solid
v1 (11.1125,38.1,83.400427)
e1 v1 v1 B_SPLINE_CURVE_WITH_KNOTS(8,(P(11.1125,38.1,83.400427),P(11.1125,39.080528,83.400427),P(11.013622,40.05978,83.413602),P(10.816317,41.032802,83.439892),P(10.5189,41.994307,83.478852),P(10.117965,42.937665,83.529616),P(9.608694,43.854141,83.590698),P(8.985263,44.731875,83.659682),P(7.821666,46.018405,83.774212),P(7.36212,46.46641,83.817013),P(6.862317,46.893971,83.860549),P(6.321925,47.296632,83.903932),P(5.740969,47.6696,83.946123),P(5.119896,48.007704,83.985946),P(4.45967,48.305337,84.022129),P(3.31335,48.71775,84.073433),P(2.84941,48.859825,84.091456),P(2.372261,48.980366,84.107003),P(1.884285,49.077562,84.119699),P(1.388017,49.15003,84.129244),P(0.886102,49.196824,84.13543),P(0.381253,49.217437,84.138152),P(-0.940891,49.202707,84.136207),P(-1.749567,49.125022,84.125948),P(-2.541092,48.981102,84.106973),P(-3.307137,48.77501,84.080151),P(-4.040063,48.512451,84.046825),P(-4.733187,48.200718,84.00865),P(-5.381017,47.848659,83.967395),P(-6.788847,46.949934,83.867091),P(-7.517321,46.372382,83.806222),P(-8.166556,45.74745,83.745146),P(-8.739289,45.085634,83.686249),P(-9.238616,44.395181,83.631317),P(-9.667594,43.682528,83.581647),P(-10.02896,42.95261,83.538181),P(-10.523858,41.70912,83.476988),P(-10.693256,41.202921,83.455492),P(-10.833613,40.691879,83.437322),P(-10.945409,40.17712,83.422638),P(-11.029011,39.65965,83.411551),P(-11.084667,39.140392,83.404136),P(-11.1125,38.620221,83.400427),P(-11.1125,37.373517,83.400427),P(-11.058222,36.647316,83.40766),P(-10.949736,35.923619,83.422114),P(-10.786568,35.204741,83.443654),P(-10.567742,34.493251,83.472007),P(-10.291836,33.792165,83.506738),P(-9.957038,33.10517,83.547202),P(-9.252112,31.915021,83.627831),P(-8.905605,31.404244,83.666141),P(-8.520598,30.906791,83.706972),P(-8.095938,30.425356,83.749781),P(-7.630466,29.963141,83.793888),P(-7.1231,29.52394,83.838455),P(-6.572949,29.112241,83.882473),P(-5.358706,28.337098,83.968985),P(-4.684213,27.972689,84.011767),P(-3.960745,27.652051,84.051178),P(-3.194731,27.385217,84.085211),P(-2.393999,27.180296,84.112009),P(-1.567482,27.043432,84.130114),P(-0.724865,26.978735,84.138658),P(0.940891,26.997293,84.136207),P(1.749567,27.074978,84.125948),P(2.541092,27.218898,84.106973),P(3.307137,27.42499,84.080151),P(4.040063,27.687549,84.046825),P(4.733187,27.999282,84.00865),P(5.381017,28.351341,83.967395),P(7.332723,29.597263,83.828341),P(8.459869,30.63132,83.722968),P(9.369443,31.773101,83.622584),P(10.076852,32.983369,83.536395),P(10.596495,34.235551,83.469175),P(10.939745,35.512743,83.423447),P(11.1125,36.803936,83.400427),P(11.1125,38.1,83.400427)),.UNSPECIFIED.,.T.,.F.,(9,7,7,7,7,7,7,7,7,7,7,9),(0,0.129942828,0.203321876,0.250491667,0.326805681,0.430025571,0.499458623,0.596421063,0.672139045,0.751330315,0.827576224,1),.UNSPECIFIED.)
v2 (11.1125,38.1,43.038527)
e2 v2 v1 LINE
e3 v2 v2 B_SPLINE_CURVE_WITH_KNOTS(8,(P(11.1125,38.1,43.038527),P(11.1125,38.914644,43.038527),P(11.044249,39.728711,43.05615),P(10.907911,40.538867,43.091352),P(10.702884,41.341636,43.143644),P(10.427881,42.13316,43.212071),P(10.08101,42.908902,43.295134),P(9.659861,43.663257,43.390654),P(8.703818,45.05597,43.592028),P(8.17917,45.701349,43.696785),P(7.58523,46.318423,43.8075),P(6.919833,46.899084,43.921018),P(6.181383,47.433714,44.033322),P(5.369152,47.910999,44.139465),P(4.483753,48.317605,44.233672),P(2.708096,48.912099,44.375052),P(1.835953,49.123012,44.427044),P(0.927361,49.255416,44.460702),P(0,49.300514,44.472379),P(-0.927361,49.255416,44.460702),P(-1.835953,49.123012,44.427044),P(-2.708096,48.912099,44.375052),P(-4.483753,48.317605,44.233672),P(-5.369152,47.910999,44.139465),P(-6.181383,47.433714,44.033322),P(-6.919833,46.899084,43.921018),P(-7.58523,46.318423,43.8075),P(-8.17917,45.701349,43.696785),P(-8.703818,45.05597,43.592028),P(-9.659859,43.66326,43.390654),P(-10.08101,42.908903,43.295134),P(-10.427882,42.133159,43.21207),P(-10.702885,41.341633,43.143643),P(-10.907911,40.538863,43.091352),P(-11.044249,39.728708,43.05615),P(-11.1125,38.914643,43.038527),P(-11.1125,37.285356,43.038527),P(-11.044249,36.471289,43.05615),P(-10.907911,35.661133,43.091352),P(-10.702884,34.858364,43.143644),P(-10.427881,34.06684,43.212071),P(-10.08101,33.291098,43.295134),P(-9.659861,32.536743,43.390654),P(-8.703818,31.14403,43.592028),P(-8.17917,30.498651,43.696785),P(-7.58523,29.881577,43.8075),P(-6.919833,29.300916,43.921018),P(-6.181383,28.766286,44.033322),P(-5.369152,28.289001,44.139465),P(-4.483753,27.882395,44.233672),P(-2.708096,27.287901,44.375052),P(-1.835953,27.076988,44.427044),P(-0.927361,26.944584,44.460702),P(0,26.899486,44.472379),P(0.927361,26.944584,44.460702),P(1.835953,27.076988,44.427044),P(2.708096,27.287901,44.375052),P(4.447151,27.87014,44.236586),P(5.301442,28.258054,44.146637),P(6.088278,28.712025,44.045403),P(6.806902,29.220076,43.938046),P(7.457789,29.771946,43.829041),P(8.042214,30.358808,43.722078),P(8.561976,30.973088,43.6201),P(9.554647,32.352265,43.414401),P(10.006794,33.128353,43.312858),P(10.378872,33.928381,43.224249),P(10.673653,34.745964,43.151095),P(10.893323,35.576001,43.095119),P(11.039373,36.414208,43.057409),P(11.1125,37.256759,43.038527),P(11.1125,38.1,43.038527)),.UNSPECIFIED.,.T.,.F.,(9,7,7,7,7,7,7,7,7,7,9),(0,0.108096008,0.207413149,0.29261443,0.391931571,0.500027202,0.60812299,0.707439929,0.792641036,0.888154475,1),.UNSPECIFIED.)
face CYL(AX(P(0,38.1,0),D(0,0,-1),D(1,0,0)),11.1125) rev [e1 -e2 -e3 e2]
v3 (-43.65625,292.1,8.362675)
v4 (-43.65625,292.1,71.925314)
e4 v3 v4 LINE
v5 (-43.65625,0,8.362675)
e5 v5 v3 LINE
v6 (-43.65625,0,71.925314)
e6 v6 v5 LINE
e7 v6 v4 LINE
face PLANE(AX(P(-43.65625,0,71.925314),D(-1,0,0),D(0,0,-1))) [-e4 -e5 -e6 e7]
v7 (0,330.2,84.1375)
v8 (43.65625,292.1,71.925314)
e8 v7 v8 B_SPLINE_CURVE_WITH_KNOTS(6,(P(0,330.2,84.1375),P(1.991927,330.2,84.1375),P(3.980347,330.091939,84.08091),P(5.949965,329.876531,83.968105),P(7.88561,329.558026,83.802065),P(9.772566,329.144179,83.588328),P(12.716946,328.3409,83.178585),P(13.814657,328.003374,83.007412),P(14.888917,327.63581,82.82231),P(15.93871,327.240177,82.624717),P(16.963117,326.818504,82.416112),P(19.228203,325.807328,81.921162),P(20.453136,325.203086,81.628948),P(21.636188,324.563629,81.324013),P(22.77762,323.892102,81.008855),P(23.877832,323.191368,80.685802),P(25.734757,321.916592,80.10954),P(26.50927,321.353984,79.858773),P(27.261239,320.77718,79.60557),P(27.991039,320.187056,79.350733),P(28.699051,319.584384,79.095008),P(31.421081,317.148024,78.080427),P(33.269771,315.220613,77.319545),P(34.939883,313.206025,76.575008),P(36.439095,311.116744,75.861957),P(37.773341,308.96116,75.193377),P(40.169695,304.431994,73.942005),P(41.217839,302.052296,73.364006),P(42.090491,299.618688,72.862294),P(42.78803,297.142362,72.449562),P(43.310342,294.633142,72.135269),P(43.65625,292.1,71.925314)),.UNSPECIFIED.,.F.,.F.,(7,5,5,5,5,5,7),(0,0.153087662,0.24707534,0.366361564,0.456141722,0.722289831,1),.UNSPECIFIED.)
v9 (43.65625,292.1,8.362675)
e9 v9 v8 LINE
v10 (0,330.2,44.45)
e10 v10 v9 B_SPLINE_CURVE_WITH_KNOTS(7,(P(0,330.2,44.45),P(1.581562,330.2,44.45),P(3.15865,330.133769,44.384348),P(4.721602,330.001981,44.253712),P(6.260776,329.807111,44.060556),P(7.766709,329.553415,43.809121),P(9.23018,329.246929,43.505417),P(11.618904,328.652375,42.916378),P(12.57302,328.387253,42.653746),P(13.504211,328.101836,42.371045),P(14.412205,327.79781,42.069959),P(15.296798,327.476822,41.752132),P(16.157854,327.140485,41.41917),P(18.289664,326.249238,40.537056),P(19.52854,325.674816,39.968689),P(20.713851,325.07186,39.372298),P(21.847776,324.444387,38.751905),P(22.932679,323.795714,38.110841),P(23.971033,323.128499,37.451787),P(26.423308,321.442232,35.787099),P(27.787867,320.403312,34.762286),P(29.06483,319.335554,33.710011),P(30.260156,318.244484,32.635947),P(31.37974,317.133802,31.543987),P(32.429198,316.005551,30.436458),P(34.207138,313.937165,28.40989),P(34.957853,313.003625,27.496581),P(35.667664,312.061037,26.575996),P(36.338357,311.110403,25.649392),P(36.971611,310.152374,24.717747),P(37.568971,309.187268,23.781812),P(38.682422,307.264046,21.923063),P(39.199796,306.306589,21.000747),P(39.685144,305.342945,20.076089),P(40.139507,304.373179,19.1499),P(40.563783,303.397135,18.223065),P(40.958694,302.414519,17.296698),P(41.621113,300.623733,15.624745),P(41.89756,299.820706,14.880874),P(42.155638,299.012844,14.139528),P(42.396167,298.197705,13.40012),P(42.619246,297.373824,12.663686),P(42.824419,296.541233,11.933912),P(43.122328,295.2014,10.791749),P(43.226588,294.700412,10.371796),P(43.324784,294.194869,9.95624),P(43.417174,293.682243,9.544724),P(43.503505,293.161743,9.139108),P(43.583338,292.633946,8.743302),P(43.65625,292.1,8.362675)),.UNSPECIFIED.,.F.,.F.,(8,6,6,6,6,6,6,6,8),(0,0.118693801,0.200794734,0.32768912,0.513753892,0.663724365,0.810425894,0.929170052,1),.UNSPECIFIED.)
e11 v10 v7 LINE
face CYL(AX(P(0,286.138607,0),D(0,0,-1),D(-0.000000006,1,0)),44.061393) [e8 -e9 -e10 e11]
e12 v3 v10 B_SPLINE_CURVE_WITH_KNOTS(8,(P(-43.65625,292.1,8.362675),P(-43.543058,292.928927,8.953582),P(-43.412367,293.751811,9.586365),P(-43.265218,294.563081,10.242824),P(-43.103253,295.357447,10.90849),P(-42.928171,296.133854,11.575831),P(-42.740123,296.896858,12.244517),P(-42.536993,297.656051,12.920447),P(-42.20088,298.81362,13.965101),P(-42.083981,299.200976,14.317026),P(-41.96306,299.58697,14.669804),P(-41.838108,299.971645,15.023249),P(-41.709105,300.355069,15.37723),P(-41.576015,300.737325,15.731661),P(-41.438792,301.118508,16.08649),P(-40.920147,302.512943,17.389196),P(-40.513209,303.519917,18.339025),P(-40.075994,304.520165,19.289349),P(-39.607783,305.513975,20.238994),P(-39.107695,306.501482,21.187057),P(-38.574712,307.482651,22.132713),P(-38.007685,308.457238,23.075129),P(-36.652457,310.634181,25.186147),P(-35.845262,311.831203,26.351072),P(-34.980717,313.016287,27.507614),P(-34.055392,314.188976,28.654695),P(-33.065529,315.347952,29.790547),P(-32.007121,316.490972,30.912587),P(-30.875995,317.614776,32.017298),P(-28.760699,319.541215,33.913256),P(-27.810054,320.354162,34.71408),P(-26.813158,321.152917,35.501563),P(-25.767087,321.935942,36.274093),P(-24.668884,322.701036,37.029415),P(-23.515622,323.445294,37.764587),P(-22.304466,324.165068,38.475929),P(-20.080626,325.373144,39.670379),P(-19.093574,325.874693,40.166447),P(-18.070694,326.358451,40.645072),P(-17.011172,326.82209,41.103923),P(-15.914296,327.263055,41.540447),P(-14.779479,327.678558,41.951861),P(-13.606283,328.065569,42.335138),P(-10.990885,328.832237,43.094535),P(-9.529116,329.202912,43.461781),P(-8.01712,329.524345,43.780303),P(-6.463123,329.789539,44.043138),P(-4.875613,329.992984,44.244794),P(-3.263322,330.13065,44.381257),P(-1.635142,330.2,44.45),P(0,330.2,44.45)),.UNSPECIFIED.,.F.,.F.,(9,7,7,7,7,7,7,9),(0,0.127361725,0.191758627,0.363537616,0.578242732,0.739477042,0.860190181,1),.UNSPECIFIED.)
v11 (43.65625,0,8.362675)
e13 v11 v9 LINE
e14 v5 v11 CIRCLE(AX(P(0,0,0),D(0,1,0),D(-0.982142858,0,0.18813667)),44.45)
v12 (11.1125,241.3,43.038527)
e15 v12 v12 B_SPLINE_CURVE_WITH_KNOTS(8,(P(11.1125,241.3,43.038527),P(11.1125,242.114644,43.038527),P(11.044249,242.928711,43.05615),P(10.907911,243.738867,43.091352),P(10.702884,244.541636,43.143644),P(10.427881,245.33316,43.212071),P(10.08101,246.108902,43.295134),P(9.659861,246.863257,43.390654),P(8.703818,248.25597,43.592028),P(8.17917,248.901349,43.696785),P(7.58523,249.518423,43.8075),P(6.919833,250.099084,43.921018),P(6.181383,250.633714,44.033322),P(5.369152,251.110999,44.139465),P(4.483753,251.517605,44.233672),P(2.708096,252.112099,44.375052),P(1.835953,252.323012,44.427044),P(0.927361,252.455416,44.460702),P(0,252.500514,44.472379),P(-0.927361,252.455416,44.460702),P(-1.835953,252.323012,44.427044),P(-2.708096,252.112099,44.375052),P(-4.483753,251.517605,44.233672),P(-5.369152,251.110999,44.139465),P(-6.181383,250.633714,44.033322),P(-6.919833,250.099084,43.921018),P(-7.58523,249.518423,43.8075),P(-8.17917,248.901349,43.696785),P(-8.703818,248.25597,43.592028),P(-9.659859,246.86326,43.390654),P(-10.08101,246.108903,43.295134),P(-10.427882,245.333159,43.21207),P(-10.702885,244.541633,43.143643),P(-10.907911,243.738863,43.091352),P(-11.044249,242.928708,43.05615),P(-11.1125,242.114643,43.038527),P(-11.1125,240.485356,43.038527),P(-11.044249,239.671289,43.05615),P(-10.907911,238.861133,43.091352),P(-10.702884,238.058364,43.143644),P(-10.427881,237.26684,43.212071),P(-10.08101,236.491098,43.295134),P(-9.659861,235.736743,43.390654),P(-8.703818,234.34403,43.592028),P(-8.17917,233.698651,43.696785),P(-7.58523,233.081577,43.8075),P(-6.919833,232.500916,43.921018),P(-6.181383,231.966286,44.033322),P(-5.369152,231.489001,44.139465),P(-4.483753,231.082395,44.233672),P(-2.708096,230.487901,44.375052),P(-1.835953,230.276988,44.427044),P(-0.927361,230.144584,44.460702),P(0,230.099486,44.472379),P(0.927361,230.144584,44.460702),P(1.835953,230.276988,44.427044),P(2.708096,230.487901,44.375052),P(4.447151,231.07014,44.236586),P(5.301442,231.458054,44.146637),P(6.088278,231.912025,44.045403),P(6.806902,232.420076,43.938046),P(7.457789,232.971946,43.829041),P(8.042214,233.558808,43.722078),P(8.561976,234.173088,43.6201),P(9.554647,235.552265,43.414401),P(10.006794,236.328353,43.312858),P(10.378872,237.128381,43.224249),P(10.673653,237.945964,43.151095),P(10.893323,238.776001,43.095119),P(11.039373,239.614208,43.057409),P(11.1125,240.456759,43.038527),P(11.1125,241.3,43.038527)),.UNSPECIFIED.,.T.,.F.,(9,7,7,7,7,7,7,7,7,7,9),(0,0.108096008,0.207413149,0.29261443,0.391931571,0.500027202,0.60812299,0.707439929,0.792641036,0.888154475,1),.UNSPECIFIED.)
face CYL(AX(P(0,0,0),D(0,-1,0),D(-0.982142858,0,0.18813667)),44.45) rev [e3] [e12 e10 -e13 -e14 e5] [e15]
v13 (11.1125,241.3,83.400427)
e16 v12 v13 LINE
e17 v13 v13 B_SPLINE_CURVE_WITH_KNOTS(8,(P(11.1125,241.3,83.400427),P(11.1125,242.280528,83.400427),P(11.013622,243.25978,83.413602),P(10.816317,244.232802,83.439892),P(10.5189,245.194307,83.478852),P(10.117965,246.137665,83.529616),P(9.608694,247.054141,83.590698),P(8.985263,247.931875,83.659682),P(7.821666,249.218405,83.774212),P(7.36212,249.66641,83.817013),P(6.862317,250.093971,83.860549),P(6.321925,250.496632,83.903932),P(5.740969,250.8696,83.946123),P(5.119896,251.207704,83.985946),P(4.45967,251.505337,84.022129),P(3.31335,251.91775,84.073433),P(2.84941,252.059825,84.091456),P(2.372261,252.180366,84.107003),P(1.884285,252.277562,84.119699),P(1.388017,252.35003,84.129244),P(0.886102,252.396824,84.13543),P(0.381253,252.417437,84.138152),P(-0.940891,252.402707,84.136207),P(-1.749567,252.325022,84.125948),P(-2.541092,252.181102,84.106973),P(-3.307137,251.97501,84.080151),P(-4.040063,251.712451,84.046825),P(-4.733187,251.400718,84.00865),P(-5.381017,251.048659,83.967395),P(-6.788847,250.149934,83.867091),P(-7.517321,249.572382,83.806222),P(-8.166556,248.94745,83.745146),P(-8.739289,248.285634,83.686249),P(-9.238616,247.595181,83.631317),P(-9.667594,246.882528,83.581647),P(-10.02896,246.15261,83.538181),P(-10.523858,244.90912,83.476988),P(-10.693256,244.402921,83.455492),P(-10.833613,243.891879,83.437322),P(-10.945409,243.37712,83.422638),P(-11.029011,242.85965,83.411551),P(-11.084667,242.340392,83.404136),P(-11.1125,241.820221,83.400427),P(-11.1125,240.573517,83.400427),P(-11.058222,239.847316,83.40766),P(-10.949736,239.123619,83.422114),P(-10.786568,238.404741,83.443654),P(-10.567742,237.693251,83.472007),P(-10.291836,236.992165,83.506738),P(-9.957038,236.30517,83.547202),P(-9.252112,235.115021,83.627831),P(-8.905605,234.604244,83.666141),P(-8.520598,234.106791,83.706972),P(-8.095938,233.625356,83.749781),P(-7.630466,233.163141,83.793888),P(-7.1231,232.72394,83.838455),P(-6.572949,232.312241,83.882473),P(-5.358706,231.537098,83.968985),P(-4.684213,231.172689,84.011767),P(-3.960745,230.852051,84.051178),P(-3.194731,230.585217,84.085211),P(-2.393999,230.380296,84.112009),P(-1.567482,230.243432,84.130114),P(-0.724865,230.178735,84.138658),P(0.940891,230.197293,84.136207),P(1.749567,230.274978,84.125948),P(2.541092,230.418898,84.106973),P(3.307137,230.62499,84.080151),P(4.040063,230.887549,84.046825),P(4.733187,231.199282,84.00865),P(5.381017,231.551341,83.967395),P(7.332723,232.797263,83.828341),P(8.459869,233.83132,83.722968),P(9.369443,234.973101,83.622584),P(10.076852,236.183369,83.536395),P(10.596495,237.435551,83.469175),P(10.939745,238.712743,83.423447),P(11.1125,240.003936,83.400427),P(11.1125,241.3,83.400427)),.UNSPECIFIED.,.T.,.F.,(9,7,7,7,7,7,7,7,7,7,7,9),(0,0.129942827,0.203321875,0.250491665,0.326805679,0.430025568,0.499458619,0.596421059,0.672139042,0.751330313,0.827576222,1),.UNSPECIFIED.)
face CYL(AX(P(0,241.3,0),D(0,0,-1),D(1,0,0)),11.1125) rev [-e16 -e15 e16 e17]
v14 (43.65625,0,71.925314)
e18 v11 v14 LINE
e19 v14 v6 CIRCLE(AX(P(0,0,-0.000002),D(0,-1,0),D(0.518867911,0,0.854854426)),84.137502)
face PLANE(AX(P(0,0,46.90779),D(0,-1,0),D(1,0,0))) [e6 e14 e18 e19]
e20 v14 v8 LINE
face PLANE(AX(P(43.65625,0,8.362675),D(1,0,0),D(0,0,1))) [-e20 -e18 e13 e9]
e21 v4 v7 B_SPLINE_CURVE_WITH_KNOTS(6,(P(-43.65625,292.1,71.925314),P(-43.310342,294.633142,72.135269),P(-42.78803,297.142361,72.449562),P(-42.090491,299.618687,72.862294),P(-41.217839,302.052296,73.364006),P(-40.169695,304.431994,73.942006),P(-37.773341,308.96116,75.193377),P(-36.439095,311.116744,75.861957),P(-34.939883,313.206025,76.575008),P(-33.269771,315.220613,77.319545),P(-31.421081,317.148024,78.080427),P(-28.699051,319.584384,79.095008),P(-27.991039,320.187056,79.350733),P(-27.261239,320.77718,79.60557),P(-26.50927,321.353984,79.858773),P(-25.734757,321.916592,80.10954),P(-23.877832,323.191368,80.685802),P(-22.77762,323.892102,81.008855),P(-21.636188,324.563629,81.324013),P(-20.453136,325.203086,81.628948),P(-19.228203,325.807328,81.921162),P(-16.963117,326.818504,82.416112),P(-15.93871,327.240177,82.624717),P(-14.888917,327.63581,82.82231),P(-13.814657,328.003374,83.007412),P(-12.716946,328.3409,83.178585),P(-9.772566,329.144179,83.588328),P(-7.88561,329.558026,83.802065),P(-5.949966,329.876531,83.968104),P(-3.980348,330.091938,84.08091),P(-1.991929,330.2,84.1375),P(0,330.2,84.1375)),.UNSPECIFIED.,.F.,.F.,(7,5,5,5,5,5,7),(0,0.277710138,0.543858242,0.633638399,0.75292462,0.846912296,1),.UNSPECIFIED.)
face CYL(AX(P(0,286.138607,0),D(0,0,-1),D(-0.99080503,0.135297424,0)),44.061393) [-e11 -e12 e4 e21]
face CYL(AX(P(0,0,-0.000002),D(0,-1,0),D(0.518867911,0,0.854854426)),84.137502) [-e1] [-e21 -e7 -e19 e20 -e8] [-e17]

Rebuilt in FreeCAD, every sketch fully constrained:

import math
import FreeCAD as App
import Part
import Sketcher
Q = App.Units.Quantity

doc = App.newDocument("Part")
body = doc.addObject("PartDesign::Body", "Body")

# Sketch on XZ plane
sketch1 = body.newObject("Sketcher::SketchObject", "Sketch")
sketch1.AttachmentSupport = (doc.getObject("XZ_Plane"), [""])
sketch1.MapMode = "FlatFace"
sketch1.addGeometry([
    Part.ArcOfCircle(Part.Circle(App.Vector(0, 0, 0), App.Vector(0, 0, 1), 44), math.radians(11), math.radians(169)),
    Part.LineSegment(App.Vector(44, 8, 0), App.Vector(44, 72, 0)),
    Part.ArcOfCircle(Part.Circle(App.Vector(0, 0, 0), App.Vector(0, 0, 1), 84), math.radians(59), math.radians(121)),
    Part.LineSegment(App.Vector(-44, 72, 0), App.Vector(-44, 8, 0)),
], False)
sketch1.addConstraint([
    Sketcher.Constraint("Coincident", 0, 1, 1, 1),
    Sketcher.Constraint("Coincident", 1, 2, 2, 1),
    Sketcher.Constraint("Coincident", 2, 2, 3, 1),
    Sketcher.Constraint("Coincident", 3, 2, 0, 2),
    Sketcher.Constraint("Vertical", 1),
    Sketcher.Constraint("Vertical", 3),
    Sketcher.Constraint("Coincident", 0, 3, -1, 1),
    Sketcher.Constraint("Coincident", 2, 3, -1, 1),
    Sketcher.Constraint("Horizontal", 1, 2, 2, 2),
    Sketcher.Constraint("Radius", 0, Q("1.75 in")),
    Sketcher.Constraint("Radius", 2, Q("3.3125001 in")),
    Sketcher.Constraint("DistanceX", -1, 1, 0, 1, Q("1.71875 in")),
])
pad1 = body.newObject("PartDesign::Pad", "Pad")
pad1.Profile = sketch1
pad1.Length = Q("13 in")
pad1.Reversed = True

# Sketch on XY plane
sketch2 = body.newObject("Sketcher::SketchObject", "Sketch001")
sketch2.AttachmentSupport = (doc.getObject("XY_Plane"), [""])
sketch2.MapMode = "FlatFace"
sketch2.addGeometry([
    Part.LineSegment(App.Vector(-44, 330, 0), App.Vector(-44, 292, 0)),  # 0
    Part.ArcOfCircle(Part.Circle(App.Vector(0, 286, 0), App.Vector(0, 0, 1), 44), math.radians(90), math.radians(172)),  # 1
    Part.LineSegment(App.Vector(0, 330, 0), App.Vector(-44, 330, 0)),  # 2
    Part.LineSegment(App.Vector(44, 330, 0), App.Vector(0, 330, 0)),  # 3
    Part.ArcOfCircle(Part.Circle(App.Vector(0, 286, 0), App.Vector(0, 0, 1), 44), math.radians(8), math.radians(90)),  # 4
    Part.LineSegment(App.Vector(44, 292, 0), App.Vector(44, 330, 0)),  # 5
], False)
sketch2.addConstraint([
    Sketcher.Constraint("Coincident", 0, 2, 1, 2),
    Sketcher.Constraint("Tangent", 1, 1, 2, 1),
    Sketcher.Constraint("Coincident", 2, 2, 0, 1),
    Sketcher.Constraint("Tangent", 3, 2, 4, 2),
    Sketcher.Constraint("Coincident", 4, 1, 5, 1),
    Sketcher.Constraint("Coincident", 5, 2, 3, 1),
    Sketcher.Constraint("Vertical", 0),
    Sketcher.Constraint("Horizontal", 2),
    Sketcher.Constraint("Horizontal", 3),
    Sketcher.Constraint("Vertical", 5),
    Sketcher.Constraint("Coincident", 4, 3, 1, 3),
    Sketcher.Constraint("Equal", 1, 4),
    Sketcher.Constraint("Symmetric", 0, 2, 4, 1, -2),
    Sketcher.Constraint("DistanceY", 0, 2, 0, 1, Q("1.5 in")),
    Sketcher.Constraint("DistanceY", -1, 1, 1, 1, Q("13 in")),
    Sketcher.Constraint("DistanceX", 2, 2, 2, 1, Q("1.71875 in")),
])
pocket1 = body.newObject("PartDesign::Pocket", "Pocket")
pocket1.Profile = sketch2
pocket1.Type = "ThroughAll"
pocket1.Reversed = True

# Sketch on XY plane
sketch3 = body.newObject("Sketcher::SketchObject", "Sketch002")
sketch3.AttachmentSupport = (doc.getObject("XY_Plane"), [""])
sketch3.MapMode = "FlatFace"
sketch3.addGeometry([
    Part.Circle(App.Vector(0, 241, 0), App.Vector(0, 0, 1), 11),
    Part.Circle(App.Vector(0, 38, 0), App.Vector(0, 0, 1), 11),
], False)
sketch3.addConstraint([
    Sketcher.Constraint("Equal", 0, 1),
    Sketcher.Constraint("PointOnObject", 0, 3, -2),
    Sketcher.Constraint("PointOnObject", 1, 3, -2),
    Sketcher.Constraint("Diameter", 0, Q("0.875 in")),
    Sketcher.Constraint("DistanceY", 1, 3, 0, 3, Q("8 in")),
    Sketcher.Constraint("DistanceY", -1, 1, 0, 3, Q("9.5 in")),
])
pocket2 = body.newObject("PartDesign::Pocket", "Pocket001")
pocket2.Profile = sketch3
pocket2.Type = "ThroughAll"
pocket2.Reversed = True

doc.recompute()
